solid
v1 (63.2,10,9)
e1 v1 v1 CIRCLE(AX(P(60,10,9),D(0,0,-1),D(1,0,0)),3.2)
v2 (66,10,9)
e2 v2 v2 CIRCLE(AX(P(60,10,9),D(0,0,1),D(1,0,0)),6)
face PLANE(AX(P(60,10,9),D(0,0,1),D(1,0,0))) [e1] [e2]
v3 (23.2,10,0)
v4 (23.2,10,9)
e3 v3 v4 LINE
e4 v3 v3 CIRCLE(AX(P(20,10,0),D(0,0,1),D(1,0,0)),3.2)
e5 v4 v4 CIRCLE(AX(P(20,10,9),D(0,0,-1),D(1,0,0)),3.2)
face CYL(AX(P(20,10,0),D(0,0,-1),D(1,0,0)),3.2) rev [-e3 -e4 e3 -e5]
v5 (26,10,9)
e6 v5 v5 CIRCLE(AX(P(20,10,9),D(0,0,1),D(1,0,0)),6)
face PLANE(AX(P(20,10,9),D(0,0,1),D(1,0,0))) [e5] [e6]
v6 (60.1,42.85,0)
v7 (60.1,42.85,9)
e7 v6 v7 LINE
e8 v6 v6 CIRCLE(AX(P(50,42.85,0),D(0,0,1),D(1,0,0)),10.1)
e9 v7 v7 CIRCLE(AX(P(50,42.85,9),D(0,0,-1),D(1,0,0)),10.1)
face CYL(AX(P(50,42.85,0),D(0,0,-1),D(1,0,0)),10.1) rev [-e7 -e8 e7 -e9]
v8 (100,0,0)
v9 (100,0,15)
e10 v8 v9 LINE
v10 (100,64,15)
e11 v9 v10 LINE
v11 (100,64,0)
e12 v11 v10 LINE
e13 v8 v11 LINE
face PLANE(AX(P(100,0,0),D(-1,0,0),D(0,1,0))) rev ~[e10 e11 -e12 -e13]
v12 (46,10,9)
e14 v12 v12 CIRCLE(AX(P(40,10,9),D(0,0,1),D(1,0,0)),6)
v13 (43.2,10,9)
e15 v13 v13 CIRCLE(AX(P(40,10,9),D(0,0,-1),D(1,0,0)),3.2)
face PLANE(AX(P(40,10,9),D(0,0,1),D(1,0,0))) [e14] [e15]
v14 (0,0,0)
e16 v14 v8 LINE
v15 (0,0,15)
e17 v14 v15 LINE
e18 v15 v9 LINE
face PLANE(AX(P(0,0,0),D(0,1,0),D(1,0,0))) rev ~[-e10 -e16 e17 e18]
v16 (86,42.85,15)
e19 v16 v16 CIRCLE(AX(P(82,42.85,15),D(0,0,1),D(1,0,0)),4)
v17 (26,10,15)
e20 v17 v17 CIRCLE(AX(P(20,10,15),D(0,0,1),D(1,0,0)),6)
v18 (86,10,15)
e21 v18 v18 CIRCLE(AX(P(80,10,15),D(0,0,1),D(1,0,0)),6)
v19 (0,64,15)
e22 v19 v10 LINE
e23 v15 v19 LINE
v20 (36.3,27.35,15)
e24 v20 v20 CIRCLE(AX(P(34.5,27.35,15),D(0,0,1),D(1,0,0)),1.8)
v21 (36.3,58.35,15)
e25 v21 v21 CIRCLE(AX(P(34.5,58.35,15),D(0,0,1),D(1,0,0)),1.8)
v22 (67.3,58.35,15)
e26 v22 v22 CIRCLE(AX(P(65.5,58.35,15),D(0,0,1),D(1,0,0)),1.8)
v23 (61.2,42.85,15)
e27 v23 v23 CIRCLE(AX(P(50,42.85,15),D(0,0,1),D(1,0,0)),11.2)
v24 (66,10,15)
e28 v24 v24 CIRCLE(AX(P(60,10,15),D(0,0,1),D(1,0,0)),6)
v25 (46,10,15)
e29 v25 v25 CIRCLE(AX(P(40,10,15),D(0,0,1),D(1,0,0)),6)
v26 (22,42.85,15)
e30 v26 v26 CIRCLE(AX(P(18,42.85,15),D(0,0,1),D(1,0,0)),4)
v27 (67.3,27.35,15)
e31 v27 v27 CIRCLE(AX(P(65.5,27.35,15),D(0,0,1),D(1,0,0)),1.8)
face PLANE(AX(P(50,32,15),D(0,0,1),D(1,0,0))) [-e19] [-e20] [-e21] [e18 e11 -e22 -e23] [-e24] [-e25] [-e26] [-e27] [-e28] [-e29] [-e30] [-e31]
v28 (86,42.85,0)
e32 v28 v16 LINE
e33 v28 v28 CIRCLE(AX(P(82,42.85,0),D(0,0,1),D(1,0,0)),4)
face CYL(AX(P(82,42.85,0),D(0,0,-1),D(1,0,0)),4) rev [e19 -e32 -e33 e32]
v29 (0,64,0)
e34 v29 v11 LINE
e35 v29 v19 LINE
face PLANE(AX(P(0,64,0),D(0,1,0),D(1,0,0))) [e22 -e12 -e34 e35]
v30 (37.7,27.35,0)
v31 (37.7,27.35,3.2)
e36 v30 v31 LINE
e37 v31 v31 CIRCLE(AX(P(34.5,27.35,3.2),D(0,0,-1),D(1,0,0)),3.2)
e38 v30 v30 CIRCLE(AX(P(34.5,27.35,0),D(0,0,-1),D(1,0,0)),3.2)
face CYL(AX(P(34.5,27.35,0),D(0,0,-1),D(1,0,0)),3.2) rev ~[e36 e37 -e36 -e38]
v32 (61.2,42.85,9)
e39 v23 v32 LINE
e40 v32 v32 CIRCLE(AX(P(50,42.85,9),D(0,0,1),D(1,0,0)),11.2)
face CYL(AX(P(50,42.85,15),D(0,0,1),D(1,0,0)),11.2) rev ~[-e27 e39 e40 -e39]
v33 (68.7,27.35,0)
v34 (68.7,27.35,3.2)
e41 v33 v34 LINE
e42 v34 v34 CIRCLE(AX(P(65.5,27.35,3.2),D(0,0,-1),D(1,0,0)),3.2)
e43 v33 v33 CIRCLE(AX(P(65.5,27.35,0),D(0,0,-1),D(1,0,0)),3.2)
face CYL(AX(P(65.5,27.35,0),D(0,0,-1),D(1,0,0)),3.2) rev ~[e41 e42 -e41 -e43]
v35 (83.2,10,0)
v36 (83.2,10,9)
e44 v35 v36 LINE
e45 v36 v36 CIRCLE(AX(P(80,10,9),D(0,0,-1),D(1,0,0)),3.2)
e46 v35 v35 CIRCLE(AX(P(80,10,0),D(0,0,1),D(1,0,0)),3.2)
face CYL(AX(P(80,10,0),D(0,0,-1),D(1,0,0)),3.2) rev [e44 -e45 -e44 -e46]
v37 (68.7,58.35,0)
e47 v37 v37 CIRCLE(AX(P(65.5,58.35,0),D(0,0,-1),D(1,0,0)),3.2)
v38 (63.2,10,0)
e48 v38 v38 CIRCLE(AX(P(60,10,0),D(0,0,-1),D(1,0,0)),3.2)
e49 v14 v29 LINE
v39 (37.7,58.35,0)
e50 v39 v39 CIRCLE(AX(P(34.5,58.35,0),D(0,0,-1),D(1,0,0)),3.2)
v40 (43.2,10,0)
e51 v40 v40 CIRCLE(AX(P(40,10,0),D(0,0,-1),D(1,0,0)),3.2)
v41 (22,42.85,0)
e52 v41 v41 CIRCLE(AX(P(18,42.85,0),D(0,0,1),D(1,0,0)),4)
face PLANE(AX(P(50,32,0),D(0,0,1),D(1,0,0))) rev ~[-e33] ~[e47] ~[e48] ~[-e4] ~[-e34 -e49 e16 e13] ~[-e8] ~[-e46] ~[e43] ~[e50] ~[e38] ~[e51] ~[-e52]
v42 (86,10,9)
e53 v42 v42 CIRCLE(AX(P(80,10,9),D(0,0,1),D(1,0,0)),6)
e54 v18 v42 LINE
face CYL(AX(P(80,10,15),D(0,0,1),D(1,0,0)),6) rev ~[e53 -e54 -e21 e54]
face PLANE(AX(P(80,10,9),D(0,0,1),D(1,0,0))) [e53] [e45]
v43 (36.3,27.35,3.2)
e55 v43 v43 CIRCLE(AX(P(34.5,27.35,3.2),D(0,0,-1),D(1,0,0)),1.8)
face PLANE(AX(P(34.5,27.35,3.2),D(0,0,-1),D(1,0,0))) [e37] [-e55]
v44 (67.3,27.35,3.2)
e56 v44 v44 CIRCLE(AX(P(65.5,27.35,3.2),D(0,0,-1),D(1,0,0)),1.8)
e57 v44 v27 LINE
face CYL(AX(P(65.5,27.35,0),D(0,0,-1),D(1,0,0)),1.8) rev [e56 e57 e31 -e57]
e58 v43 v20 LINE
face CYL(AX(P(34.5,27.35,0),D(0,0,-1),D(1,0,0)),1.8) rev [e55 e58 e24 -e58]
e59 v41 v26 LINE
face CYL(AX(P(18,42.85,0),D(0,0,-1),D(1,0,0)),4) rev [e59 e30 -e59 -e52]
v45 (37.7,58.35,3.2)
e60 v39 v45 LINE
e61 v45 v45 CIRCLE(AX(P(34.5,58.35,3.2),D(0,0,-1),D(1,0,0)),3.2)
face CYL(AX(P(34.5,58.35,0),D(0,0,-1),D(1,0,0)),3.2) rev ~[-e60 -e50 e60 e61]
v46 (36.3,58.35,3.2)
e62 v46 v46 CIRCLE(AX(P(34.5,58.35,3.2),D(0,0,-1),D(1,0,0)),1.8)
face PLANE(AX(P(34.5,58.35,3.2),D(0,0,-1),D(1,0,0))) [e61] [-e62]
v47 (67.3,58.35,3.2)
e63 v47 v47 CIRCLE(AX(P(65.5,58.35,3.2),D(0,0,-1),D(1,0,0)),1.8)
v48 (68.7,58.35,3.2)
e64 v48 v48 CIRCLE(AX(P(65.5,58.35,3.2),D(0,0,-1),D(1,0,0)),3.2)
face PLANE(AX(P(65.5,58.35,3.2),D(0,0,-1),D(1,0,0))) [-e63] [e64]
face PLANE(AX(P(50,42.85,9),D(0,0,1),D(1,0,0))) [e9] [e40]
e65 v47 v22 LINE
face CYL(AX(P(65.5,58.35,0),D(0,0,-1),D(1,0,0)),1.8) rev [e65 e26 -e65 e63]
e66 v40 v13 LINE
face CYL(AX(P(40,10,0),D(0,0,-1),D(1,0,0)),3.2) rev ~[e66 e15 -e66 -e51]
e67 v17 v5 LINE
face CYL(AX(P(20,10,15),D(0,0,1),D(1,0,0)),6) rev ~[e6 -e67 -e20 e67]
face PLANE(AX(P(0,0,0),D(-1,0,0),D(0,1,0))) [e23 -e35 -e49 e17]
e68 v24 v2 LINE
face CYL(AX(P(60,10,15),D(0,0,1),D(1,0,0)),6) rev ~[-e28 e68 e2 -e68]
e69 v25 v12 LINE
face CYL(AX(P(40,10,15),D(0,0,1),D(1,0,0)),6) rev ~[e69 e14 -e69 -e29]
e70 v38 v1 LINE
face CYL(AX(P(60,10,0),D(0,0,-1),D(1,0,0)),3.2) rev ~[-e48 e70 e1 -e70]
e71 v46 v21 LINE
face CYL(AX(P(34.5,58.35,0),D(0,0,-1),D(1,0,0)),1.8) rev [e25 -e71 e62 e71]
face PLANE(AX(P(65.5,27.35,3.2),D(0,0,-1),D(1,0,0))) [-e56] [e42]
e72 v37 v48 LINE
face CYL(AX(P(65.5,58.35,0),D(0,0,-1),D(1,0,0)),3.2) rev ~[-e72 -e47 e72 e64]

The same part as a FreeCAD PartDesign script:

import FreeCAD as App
import Part
import Sketcher

doc = App.newDocument("Part")
body = doc.addObject("PartDesign::Body", "Body")

# Sketch on XY plane
sketch1 = body.newObject("Sketcher::SketchObject", "Sketch")
sketch1.AttachmentSupport = (doc.getObject("XY_Plane"), [""])
sketch1.MapMode = "FlatFace"
sketch1.addGeometry(Part.LineSegment(App.Vector(0, 64, 0), App.Vector(0, 0, 0)), False)
sketch1.addGeometry(Part.LineSegment(App.Vector(0, 0, 0), App.Vector(100, 0, 0)), False)
sketch1.addGeometry(Part.LineSegment(App.Vector(100, 0, 0), App.Vector(100, 64, 0)), False)
sketch1.addGeometry(Part.LineSegment(App.Vector(100, 64, 0), App.Vector(0, 64, 0)), False)
sketch1.addGeometry(Part.Circle(App.Vector(20, 10, 0), App.Vector(0, 0, 1), 3.2), False)
sketch1.addGeometry(Part.Circle(App.Vector(34.5, 27.4, 0), App.Vector(0, 0, 1), 1.8), False)
sketch1.addGeometry(Part.Circle(App.Vector(80, 10, 0), App.Vector(0, 0, 1), 3.2), False)
sketch1.addGeometry(Part.Circle(App.Vector(65.5, 27.4, 0), App.Vector(0, 0, 1), 1.8), False)
sketch1.addGeometry(Part.Circle(App.Vector(18, 42.9, 0), App.Vector(0, 0, 1), 4), False)
sketch1.addGeometry(Part.Circle(App.Vector(34.5, 58.4, 0), App.Vector(0, 0, 1), 1.8), False)
sketch1.addGeometry(Part.Circle(App.Vector(50, 42.9, 0), App.Vector(0, 0, 1), 10.1), False)
sketch1.addGeometry(Part.Circle(App.Vector(82, 42.9, 0), App.Vector(0, 0, 1), 4), False)
sketch1.addGeometry(Part.Circle(App.Vector(65.5, 58.4, 0), App.Vector(0, 0, 1), 1.8), False)
sketch1.addConstraint(Sketcher.Constraint("Coincident", 0, 2, 1, 1))
sketch1.addConstraint(Sketcher.Constraint("Coincident", 1, 2, 2, 1))
sketch1.addConstraint(Sketcher.Constraint("Coincident", 2, 2, 3, 1))
sketch1.addConstraint(Sketcher.Constraint("Coincident", 3, 2, 0, 1))
sketch1.addConstraint(Sketcher.Constraint("Vertical", 0))
sketch1.addConstraint(Sketcher.Constraint("Horizontal", 1))
sketch1.addConstraint(Sketcher.Constraint("Vertical", 2))
sketch1.addConstraint(Sketcher.Constraint("Horizontal", 3))
sketch1.addConstraint(Sketcher.Constraint("Coincident", 0, 2, -1, 1))
sketch1.addConstraint(Sketcher.Constraint("Equal", 4, 6))
sketch1.addConstraint(Sketcher.Constraint("Equal", 5, 7))
sketch1.addConstraint(Sketcher.Constraint("Equal", 7, 9))
sketch1.addConstraint(Sketcher.Constraint("Equal", 8, 11))
sketch1.addConstraint(Sketcher.Constraint("Equal", 9, 12))
sketch1.addConstraint(Sketcher.Constraint("Horizontal", 4, 3, 6, 3))
sketch1.addConstraint(Sketcher.Constraint("Horizontal", 5, 3, 7, 3))
sketch1.addConstraint(Sketcher.Constraint("Horizontal", 8, 3, 10, 3))
sketch1.addConstraint(Sketcher.Constraint("Horizontal", 10, 3, 11, 3))
sketch1.addConstraint(Sketcher.Constraint("Horizontal", 9, 3, 12, 3))
sketch1.addConstraint(Sketcher.Constraint("Vertical", 5, 3, 9, 3))
sketch1.addConstraint(Sketcher.Constraint("Vertical", 7, 3, 12, 3))
sketch1.addConstraint(Sketcher.Constraint("Diameter", 8, 8.0))
sketch1.addConstraint(Sketcher.Constraint("Diameter", 4, 6.4))
sketch1.addConstraint(Sketcher.Constraint("Diameter", 5, 3.6))
sketch1.addConstraint(Sketcher.Constraint("Diameter", 10, 20.2))
sketch1.addConstraint(Sketcher.Constraint("DistanceX", 1, 1, 1, 2, 100.0))
sketch1.addConstraint(Sketcher.Constraint("DistanceY", 0, 2, 0, 1, 64.0))
sketch1.addConstraint(Sketcher.Constraint("DistanceX", -1, 1, 4, 3, 20.0))
sketch1.addConstraint(Sketcher.Constraint("DistanceY", -1, 1, 4, 3, 10.0))
sketch1.addConstraint(Sketcher.Constraint("DistanceX", -1, 1, 6, 3, 80.0))
sketch1.addConstraint(Sketcher.Constraint("DistanceX", -1, 1, 8, 3, 18.0))
sketch1.addConstraint(Sketcher.Constraint("DistanceX", -1, 1, 10, 3, 50.0))
sketch1.addConstraint(Sketcher.Constraint("DistanceX", -1, 1, 11, 3, 82.0))
sketch1.addConstraint(Sketcher.Constraint("DistanceX", 5, 3, 7, 3, 31.0))
sketch1.addConstraint(Sketcher.Constraint("DistanceY", 5, 3, 9, 3, 31.0))
sketch1.addConstraint(Sketcher.Constraint("DistanceX", -1, 1, 5, 3, 34.5))
sketch1.addConstraint(Sketcher.Constraint("DistanceY", 5, 3, 8, 3, 15.5))
sketch1.addConstraint(Sketcher.Constraint("DistanceY", -1, 1, 5, 3, 27.35))
pad1 = body.newObject("PartDesign::Pad", "Pad")
pad1.Profile = sketch1
pad1.Length = 15

# Sketch on XY plane
sketch2 = body.newObject("Sketcher::SketchObject", "Sketch001")
sketch2.AttachmentSupport = (doc.getObject("XY_Plane"), [""])
sketch2.MapMode = "FlatFace"
sketch2.AttachmentOffset = App.Placement(App.Vector(0, 0, 15), App.Rotation())
sketch2.addGeometry(Part.Circle(App.Vector(50, 43, 0), App.Vector(0, 0, 1), 11), False)
sketch2.addGeometry(Part.Circle(App.Vector(20, 10, 0), App.Vector(0, 0, 1), 6), False)
sketch2.addGeometry(Part.Circle(App.Vector(80, 10, 0), App.Vector(0, 0, 1), 6), False)
sketch2.addConstraint(Sketcher.Constraint("Equal", 1, 2))
sketch2.addConstraint(Sketcher.Constraint("Horizontal", 1, 3, 2, 3))
sketch2.addConstraint(Sketcher.Constraint("Diameter", 1, 12.0))
sketch2.addConstraint(Sketcher.Constraint("Diameter", 0, 22.4))
sketch2.addConstraint(Sketcher.Constraint("DistanceX", -1, 1, 0, 3, 50.0))
sketch2.addConstraint(Sketcher.Constraint("DistanceX", -1, 1, 1, 3, 20.0))
sketch2.addConstraint(Sketcher.Constraint("DistanceY", -1, 1, 1, 3, 10.0))
sketch2.addConstraint(Sketcher.Constraint("DistanceX", -1, 1, 2, 3, 80.0))
sketch2.addConstraint(Sketcher.Constraint("DistanceY", -1, 1, 0, 3, 42.85))
pocket1 = body.newObject("PartDesign::Pocket", "Pocket")
pocket1.Profile = sketch2
pocket1.Length = 6

# Sketch on XY plane
sketch3 = body.newObject("Sketcher::SketchObject", "Sketch002")
sketch3.AttachmentSupport = (doc.getObject("XY_Plane"), [""])
sketch3.MapMode = "FlatFace"
sketch3.addGeometry(Part.Circle(App.Vector(34.5, 27.4, 0), App.Vector(0, 0, 1), 3.2), False)
sketch3.addGeometry(Part.Circle(App.Vector(65.5, 27.4, 0), App.Vector(0, 0, 1), 3.2), False)
sketch3.addGeometry(Part.Circle(App.Vector(34.5, 58.4, 0), App.Vector(0, 0, 1), 3.2), False)
sketch3.addGeometry(Part.Circle(App.Vector(65.5, 58.4, 0), App.Vector(0, 0, 1), 3.2), False)
sketch3.addConstraint(Sketcher.Constraint("Equal", 0, 1))
sketch3.addConstraint(Sketcher.Constraint("Equal", 1, 2))
sketch3.addConstraint(Sketcher.Constraint("Equal", 2, 3))
sketch3.addConstraint(Sketcher.Constraint("Horizontal", 0, 3, 1, 3))
sketch3.addConstraint(Sketcher.Constraint("Horizontal", 2, 3, 3, 3))
sketch3.addConstraint(Sketcher.Constraint("Vertical", 0, 3, 2, 3))
sketch3.addConstraint(Sketcher.Constraint("Vertical", 1, 3, 3, 3))
sketch3.addConstraint(Sketcher.Constraint("Diameter", 0, 6.4))
sketch3.addConstraint(Sketcher.Constraint("DistanceX", 0, 3, 1, 3, 31.0))
sketch3.addConstraint(Sketcher.Constraint("DistanceY", 0, 3, 2, 3, 31.0))
sketch3.addConstraint(Sketcher.Constraint("DistanceX", -1, 1, 0, 3, 34.5))
sketch3.addConstraint(Sketcher.Constraint("DistanceY", -1, 1, 0, 3, 27.35))
pocket2 = body.newObject("PartDesign::Pocket", "Pocket001")
pocket2.Profile = sketch3
pocket2.Length = 3.2
pocket2.Reversed = True

# Sketch on XY plane
sketch4 = body.newObject("Sketcher::SketchObject", "Sketch003")
sketch4.AttachmentSupport = (doc.getObject("XY_Plane"), [""])
sketch4.MapMode = "FlatFace"
sketch4.AttachmentOffset = App.Placement(App.Vector(0, 0, 15), App.Rotation())
sketch4.addGeometry(Part.Circle(App.Vector(40, 10, 0), App.Vector(0, 0, 1), 6), False)
sketch4.addGeometry(Part.Circle(App.Vector(60, 10, 0), App.Vector(0, 0, 1), 6), False)
sketch4.addConstraint(Sketcher.Constraint("Equal", 0, 1))
sketch4.addConstraint(Sketcher.Constraint("Horizontal", 0, 3, 1, 3))
sketch4.addConstraint(Sketcher.Constraint("Diameter", 0, 12.0))
sketch4.addConstraint(Sketcher.Constraint("DistanceX", -1, 1, 0, 3, 40.0))
sketch4.addConstraint(Sketcher.Constraint("DistanceY", -1, 1, 0, 3, 10.0))
sketch4.addConstraint(Sketcher.Constraint("DistanceX", -1, 1, 1, 3, 60.0))
pocket3 = body.newObject("PartDesign::Pocket", "Pocket002")
pocket3.Profile = sketch4
pocket3.Length = 6

# Sketch on XY plane
sketch5 = body.newObject("Sketcher::SketchObject", "Sketch004")
sketch5.AttachmentSupport = (doc.getObject("XY_Plane"), [""])
sketch5.MapMode = "FlatFace"
sketch5.addGeometry(Part.Circle(App.Vector(40, 10, 0), App.Vector(0, 0, 1), 3.2), False)
sketch5.addGeometry(Part.Circle(App.Vector(60, 10, 0), App.Vector(0, 0, 1), 3.2), False)
sketch5.addConstraint(Sketcher.Constraint("Equal", 0, 1))
sketch5.addConstraint(Sketcher.Constraint("Horizontal", 0, 3, 1, 3))
sketch5.addConstraint(Sketcher.Constraint("Diameter", 0, 6.4))
sketch5.addConstraint(Sketcher.Constraint("DistanceX", -1, 1, 0, 3, 40.0))
sketch5.addConstraint(Sketcher.Constraint("DistanceY", -1, 1, 0, 3, 10.0))
sketch5.addConstraint(Sketcher.Constraint("DistanceX", -1, 1, 1, 3, 60.0))
pocket4 = body.newObject("PartDesign::Pocket", "Pocket003")
pocket4.Profile = sketch5
pocket4.Length = 15
pocket4.Reversed = True

doc.recompute()
